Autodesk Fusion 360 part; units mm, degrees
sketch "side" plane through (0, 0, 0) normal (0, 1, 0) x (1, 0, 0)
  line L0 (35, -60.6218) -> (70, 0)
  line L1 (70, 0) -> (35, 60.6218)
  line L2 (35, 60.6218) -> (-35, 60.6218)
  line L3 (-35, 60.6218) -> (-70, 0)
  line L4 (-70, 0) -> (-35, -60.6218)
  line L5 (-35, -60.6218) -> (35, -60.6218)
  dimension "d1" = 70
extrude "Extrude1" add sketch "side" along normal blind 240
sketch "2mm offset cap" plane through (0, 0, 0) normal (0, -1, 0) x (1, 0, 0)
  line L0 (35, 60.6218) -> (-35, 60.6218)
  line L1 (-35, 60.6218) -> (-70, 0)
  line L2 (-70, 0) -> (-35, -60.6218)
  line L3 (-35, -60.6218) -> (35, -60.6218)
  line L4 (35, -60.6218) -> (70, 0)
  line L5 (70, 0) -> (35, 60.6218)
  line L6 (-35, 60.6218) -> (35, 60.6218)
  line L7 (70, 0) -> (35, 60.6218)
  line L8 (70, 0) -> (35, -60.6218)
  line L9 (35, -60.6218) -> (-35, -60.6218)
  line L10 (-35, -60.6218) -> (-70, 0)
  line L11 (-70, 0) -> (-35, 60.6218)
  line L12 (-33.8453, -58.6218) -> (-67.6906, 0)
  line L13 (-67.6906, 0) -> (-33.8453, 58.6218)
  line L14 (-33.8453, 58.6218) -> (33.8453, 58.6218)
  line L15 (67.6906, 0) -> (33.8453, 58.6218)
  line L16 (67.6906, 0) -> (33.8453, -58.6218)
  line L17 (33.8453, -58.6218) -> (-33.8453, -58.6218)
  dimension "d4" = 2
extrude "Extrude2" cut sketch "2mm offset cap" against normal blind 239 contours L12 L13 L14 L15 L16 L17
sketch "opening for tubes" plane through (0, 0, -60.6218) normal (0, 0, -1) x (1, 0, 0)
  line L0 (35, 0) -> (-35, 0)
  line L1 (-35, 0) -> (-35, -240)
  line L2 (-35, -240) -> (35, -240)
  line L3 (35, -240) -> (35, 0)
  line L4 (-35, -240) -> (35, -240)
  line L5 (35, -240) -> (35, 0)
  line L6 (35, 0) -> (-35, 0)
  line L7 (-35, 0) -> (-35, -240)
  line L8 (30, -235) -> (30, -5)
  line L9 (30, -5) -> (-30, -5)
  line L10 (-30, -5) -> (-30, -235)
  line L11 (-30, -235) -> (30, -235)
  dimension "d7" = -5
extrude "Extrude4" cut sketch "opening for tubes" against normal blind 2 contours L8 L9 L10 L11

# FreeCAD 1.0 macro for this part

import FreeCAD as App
import Part
import Sketcher
Q = App.Units.Quantity

doc = App.newDocument("Part")
body = doc.addObject("PartDesign::Body", "Body")

sketch1 = body.newObject("Sketcher::SketchObject", "Sketch")
sketch1.AttachmentSupport = (doc.getObject("XZ_Plane"), [""])
sketch1.MapMode = "FlatFace"
sketch1.addGeometry(Part.LineSegment(App.Vector(-35, 61, 0), App.Vector(35, 61, 0)), False)
sketch1.addGeometry(Part.LineSegment(App.Vector(35, 61, 0), App.Vector(70, 0, 0)), False)
sketch1.addGeometry(Part.LineSegment(App.Vector(70, 0, 0), App.Vector(35, -61, 0)), False)
sketch1.addGeometry(Part.LineSegment(App.Vector(35, -61, 0), App.Vector(-35, -61, 0)), False)
sketch1.addGeometry(Part.LineSegment(App.Vector(-35, -61, 0), App.Vector(-70, 0, 0)), False)
sketch1.addGeometry(Part.LineSegment(App.Vector(-70, 0, 0), App.Vector(-35, 61, 0)), False)
sketch1.addConstraint(Sketcher.Constraint("Coincident", 0, 2, 1, 1))
sketch1.addConstraint(Sketcher.Constraint("Coincident", 1, 2, 2, 1))
sketch1.addConstraint(Sketcher.Constraint("Coincident", 2, 2, 3, 1))
sketch1.addConstraint(Sketcher.Constraint("Coincident", 3, 2, 4, 1))
sketch1.addConstraint(Sketcher.Constraint("Coincident", 4, 2, 5, 1))
sketch1.addConstraint(Sketcher.Constraint("Coincident", 5, 2, 0, 1))
sketch1.addConstraint(Sketcher.Constraint("Horizontal", 0))
sketch1.addConstraint(Sketcher.Constraint("Horizontal", 3))
sketch1.addConstraint(Sketcher.Constraint("Symmetric", 0, 2, 3, 2, -1, 1))
sketch1.addConstraint(Sketcher.Constraint("Symmetric", 1, 2, 4, 2, -1, 1))
sketch1.addConstraint(Sketcher.Constraint("PointOnObject", 1, 2, -1))
sketch1.addConstraint(Sketcher.Constraint("Parallel", 2, 5))
sketch1.addConstraint(Sketcher.Constraint("Vertical", 0, 2, 2, 2))
sketch1.addConstraint(Sketcher.Constraint("DistanceX", 0, 1, 0, 2, Q("70 mm")))
sketch1.addConstraint(Sketcher.Constraint("Distance", 1, Q("70 mm")))
sketch1.addConstraint(Sketcher.Constraint("DistanceX", -1, 1, 1, 2, Q("70 mm")))
pad1 = body.newObject("PartDesign::Pad", "Pad")
pad1.Profile = sketch1
pad1.Length = 240
pad1.Reversed = True

sketch2 = body.newObject("Sketcher::SketchObject", "Sketch001")
sketch2.AttachmentSupport = (doc.getObject("XZ_Plane"), [""])
sketch2.MapMode = "FlatFace"
sketch2.addGeometry(Part.LineSegment(App.Vector(-68, 0, 0), App.Vector(-34, -59, 0)), False)
sketch2.addGeometry(Part.LineSegment(App.Vector(-34, -59, 0), App.Vector(34, -59, 0)), False)
sketch2.addGeometry(Part.LineSegment(App.Vector(34, -59, 0), App.Vector(68, 0, 0)), False)
sketch2.addGeometry(Part.LineSegment(App.Vector(68, 0, 0), App.Vector(34, 59, 0)), False)
sketch2.addGeometry(Part.LineSegment(App.Vector(34, 59, 0), App.Vector(-34, 59, 0)), False)
sketch2.addGeometry(Part.LineSegment(App.Vector(-34, 59, 0), App.Vector(-68, 0, 0)), False)
sketch2.addConstraint(Sketcher.Constraint("Coincident", 0, 2, 1, 1))
sketch2.addConstraint(Sketcher.Constraint("Coincident", 1, 2, 2, 1))
sketch2.addConstraint(Sketcher.Constraint("Coincident", 2, 2, 3, 1))
sketch2.addConstraint(Sketcher.Constraint("Coincident", 3, 2, 4, 1))
sketch2.addConstraint(Sketcher.Constraint("Coincident", 4, 2, 5, 1))
sketch2.addConstraint(Sketcher.Constraint("Coincident", 5, 2, 0, 1))
sketch2.addConstraint(Sketcher.Constraint("Horizontal", 1))
sketch2.addConstraint(Sketcher.Constraint("Horizontal", 4))
sketch2.addConstraint(Sketcher.Constraint("Symmetric", 0, 2, 3, 2, -1, 1))
sketch2.addConstraint(Sketcher.Constraint("Symmetric", 2, 2, 5, 2, -1, 1))
sketch2.addConstraint(Sketcher.Constraint("PointOnObject", 2, 2, -1))
sketch2.addConstraint(Sketcher.Constraint("Parallel", 2, 5))
sketch2.addConstraint(Sketcher.Constraint("Vertical", 1, 2, 3, 2))
sketch2.addConstraint(Sketcher.Constraint("Angle", 0, Q("-60 deg")))
sketch2.addConstraint(Sketcher.Constraint("DistanceX", 1, 1, 1, 2, Q("67.6906 mm")))
sketch2.addConstraint(Sketcher.Constraint("DistanceX", 0, 2, 2, 2, Q("101.536 mm")))
pocket1 = body.newObject("PartDesign::Pocket", "Pocket")
pocket1.Profile = sketch2
pocket1.Length = 239

sketch3 = body.newObject("Sketcher::SketchObject", "Sketch002")
sketch3.AttachmentSupport = (doc.getObject("XY_Plane"), [""])
sketch3.MapMode = "FlatFace"
sketch3.AttachmentOffset = App.Placement(App.Vector(0, 0, -60.6218), App.Rotation())
sketch3.addGeometry(Part.LineSegment(App.Vector(-30, 235, 0), App.Vector(30, 235, 0)), False)
sketch3.addGeometry(Part.LineSegment(App.Vector(30, 235, 0), App.Vector(30, 5, 0)), False)
sketch3.addGeometry(Part.LineSegment(App.Vector(30, 5, 0), App.Vector(-30, 5, 0)), False)
sketch3.addGeometry(Part.LineSegment(App.Vector(-30, 5, 0), App.Vector(-30, 235, 0)), False)
sketch3.addConstraint(Sketcher.Constraint("Coincident", 0, 2, 1, 1))
sketch3.addConstraint(Sketcher.Constraint("Coincident", 1, 2, 2, 1))
sketch3.addConstraint(Sketcher.Constraint("Coincident", 2, 2, 3, 1))
sketch3.addConstraint(Sketcher.Constraint("Coincident", 3, 2, 0, 1))
sketch3.addConstraint(Sketcher.Constraint("Horizontal", 0))
sketch3.addConstraint(Sketcher.Constraint("Vertical", 1))
sketch3.addConstraint(Sketcher.Constraint("Horizontal", 2))
sketch3.addConstraint(Sketcher.Constraint("Vertical", 3))
sketch3.addConstraint(Sketcher.Constraint("DistanceY", -1, 1, 1, 2, Q("5 mm")))
sketch3.addConstraint(Sketcher.Constraint("DistanceX", 0, 1, 0, 2, Q("60 mm")))
sketch3.addConstraint(Sketcher.Constraint("DistanceY", 1, 2, 1, 1, Q("230 mm")))
sketch3.addConstraint(Sketcher.Constraint("DistanceX", -1, 1, 0, 2, Q("30 mm")))
pocket2 = body.newObject("PartDesign::Pocket", "Pocket001")
pocket2.Profile = sketch3
pocket2.Length = 2
pocket2.Reversed = True

doc.recompute()
